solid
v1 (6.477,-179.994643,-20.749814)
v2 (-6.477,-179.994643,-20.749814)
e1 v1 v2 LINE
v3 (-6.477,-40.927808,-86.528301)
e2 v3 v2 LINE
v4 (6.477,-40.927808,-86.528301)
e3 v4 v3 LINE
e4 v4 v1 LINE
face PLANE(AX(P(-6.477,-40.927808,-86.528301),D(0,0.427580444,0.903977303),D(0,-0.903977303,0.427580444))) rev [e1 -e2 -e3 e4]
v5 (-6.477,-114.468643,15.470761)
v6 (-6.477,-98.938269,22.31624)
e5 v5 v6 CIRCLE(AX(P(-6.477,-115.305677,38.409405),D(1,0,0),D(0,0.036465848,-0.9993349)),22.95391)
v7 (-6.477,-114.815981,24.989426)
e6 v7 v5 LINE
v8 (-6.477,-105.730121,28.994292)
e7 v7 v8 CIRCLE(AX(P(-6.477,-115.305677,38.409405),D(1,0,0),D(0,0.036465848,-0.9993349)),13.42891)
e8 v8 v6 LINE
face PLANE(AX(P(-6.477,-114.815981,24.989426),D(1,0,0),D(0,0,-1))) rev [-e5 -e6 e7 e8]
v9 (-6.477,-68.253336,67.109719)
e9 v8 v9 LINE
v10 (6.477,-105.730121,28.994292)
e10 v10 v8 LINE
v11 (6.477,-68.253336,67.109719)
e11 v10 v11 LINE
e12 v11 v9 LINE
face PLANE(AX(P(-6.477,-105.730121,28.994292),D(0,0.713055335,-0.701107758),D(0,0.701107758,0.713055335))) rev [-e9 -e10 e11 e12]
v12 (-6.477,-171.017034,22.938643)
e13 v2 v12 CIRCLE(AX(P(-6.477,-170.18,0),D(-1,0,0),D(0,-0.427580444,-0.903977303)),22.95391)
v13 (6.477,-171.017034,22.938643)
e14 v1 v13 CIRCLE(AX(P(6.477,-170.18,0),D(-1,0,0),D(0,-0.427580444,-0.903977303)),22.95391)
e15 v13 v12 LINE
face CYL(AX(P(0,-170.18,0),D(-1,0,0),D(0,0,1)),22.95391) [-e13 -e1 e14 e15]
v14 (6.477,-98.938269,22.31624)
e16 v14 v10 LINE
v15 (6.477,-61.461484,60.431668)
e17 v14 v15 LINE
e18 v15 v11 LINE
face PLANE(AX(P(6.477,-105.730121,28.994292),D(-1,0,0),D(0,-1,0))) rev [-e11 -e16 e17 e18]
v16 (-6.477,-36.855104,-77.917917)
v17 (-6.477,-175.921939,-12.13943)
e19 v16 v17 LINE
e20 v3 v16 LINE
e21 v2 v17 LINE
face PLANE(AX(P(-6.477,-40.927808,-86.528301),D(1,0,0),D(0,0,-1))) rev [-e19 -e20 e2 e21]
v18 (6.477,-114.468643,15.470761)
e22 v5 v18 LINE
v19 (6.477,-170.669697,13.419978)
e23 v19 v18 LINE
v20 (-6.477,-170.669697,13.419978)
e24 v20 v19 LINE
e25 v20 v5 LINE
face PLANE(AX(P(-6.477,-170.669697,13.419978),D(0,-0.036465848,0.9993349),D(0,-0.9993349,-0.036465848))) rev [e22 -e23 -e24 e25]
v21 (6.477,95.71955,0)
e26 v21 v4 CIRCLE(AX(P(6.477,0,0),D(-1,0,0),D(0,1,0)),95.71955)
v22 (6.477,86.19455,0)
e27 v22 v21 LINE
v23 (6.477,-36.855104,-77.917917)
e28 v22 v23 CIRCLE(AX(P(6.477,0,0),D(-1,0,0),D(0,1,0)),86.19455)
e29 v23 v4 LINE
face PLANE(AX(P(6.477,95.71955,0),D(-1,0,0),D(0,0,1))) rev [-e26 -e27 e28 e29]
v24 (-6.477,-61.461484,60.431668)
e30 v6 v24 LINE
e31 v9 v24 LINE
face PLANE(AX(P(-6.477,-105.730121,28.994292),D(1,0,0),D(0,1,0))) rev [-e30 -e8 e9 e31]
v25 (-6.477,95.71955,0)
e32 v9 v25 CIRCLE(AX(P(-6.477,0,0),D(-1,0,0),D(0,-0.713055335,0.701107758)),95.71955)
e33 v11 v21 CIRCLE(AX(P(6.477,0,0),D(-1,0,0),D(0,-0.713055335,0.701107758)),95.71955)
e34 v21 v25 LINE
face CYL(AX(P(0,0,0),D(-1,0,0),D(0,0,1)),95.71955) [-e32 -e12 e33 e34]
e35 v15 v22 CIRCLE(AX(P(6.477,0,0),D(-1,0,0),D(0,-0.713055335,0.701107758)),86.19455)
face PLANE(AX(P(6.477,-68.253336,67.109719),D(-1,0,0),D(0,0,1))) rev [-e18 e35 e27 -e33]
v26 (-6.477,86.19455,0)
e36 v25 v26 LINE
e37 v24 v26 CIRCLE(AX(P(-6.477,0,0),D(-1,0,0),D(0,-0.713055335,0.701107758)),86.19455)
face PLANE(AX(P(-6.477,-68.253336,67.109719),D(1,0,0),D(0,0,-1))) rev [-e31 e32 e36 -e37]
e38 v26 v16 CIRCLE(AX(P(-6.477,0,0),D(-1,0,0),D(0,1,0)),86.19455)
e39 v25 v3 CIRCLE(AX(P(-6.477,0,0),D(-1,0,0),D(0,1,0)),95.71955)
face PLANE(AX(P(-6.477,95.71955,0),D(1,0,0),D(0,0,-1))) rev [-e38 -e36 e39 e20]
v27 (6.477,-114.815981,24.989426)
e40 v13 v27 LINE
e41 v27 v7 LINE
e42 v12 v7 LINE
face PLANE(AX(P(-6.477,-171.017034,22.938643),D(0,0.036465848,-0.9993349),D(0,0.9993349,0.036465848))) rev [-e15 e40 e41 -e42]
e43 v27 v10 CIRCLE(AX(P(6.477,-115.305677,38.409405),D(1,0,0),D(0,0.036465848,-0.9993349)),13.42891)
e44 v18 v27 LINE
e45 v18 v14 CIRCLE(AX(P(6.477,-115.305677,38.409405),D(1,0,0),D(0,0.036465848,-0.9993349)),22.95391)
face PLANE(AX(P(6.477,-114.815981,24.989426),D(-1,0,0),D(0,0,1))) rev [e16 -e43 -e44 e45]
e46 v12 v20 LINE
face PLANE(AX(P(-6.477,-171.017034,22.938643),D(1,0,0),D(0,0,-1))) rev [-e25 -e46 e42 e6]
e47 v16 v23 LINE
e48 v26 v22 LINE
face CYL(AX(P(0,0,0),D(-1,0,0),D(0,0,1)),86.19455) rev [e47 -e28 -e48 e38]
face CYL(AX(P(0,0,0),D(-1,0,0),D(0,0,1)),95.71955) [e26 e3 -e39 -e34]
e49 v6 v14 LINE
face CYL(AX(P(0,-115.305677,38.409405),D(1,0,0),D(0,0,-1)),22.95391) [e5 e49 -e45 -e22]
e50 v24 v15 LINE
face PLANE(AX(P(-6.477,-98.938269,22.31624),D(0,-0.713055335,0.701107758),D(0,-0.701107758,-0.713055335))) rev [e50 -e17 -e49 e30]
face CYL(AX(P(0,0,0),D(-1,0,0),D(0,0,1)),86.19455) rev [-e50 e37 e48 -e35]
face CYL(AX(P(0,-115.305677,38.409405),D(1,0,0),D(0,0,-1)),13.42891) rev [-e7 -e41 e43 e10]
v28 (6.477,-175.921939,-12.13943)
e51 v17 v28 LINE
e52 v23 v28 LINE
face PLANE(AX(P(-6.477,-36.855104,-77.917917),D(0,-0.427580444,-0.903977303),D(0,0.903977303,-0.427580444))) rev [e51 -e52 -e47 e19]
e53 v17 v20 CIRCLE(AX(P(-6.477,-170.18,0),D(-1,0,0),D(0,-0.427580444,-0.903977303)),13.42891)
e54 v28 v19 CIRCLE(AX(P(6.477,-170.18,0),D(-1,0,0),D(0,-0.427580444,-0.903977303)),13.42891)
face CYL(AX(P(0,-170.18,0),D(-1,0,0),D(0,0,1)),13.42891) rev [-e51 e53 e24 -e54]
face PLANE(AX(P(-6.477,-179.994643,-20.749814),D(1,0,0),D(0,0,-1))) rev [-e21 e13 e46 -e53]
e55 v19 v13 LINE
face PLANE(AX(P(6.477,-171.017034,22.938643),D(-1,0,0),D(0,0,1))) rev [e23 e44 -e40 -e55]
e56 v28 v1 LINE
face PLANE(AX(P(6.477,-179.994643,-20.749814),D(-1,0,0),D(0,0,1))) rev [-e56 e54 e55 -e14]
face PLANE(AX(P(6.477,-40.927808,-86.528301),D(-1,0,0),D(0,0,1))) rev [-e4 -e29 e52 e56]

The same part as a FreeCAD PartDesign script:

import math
import FreeCAD as App
import Part
import Sketcher

V = App.Vector
Q = App.Units.Quantity


def add_polygon(sketch, points):
    """Adds a closed chain of lines whose ends are joined by coincident constraints."""
    first, n = sketch.GeometryCount, len(points)
    for a, b in zip(points, points[1:] + points[:1]):
        sketch.addGeometry(Part.LineSegment(App.Vector(*a, 0), App.Vector(*b, 0)), False)
    for i in range(n):
        sketch.addConstraint(Sketcher.Constraint("Coincident", first + i, 2, first + (i + 1) % n, 1))

doc = App.newDocument("Part")
params = doc.addObject("Spreadsheet::Sheet", "Params")
for row, (alias, value) in enumerate([
    ("sketch1_width", "0.51 in"),
    ("sketch1_height", "0.375 in"),
], start=1):
    params.set(f"A{row}", alias)
    params.set(f"B{row}", "=" + value)
    params.setAlias(f"B{row}", alias)

body = doc.addObject("PartDesign::Body", "Body")

# Sketch on XY plane
sketch1 = body.newObject("Sketcher::SketchObject", "Sketch")
sketch1.AttachmentSupport = (doc.getObject("XY_Plane"), [""])
sketch1.MapMode = "FlatFace"
add_polygon(sketch1, [(-6, 96), (-6, 86), (6, 86), (6, 96)])  # lines 0-3
sketch1.addConstraint([
    Sketcher.Constraint("Vertical", 0),
    Sketcher.Constraint("Horizontal", 1),
    Sketcher.Constraint("Vertical", 2),
    Sketcher.Constraint("Horizontal", 3),
    Sketcher.Constraint("DistanceX", 1, 1, 1, 2, Q("0.51 in")),
    Sketcher.Constraint("DistanceY", 0, 2, 0, 1, Q("0.375 in")),
    Sketcher.Constraint("DistanceX", 0, 2, -1, 1, Q("0.255 in")),
    Sketcher.Constraint("DistanceY", -1, 1, 0, 2, 86.19455),
])
sketch1.setExpression("Constraints[8]", "Params.sketch1_width")
sketch1.setExpression("Constraints[9]", "Params.sketch1_height")

# Sketch on YZ plane
sketch2 = body.newObject("Sketcher::SketchObject", "Sketch001")
sketch2.AttachmentSupport = (doc.getObject("YZ_Plane"), [""])
sketch2.MapMode = "FlatFace"
sketch2.addGeometry([
    Part.LineSegment(V(-178, -16, 0), V(-39, -82, 0)),  # 0
    Part.ArcOfCircle(Part.Circle(V(0, 0, 0), V(0, 0, 1), 91), math.radians(-115), math.radians(135)),  # 1
    Part.LineSegment(V(-65, 64, 0), V(-102, 26, 0)),  # 2
    Part.ArcOfCircle(Part.Circle(V(-115, 38, 0), V(0, 0, 1), 18), math.radians(-88), math.radians(-45)),  # 3
    Part.LineSegment(V(-115, 20, 0), V(-171, 18, 0)),  # 4
    Part.ArcOfCircle(Part.Circle(V(-170, 0, 0), V(0, 0, 1), 18), math.radians(92), math.radians(245)),  # 5
], False)
sketch2.addConstraint([
    Sketcher.Constraint("Tangent", 0, 2, 1, 1),
    Sketcher.Constraint("Tangent", 1, 2, 2, 1),
    Sketcher.Constraint("Tangent", 2, 2, 3, 2),
    Sketcher.Constraint("Tangent", 3, 1, 4, 1),
    Sketcher.Constraint("Tangent", 4, 2, 5, 1),
    Sketcher.Constraint("Tangent", 5, 2, 0, 1),
    Sketcher.Constraint("Coincident", 1, 3, -1, 1),
    Sketcher.Constraint("Equal", 3, 5),
    Sketcher.Constraint("PointOnObject", 5, 3, -1),
    Sketcher.Constraint("DistanceX", 5, 3, -1, 1, Q("6.7 in")),
    Sketcher.Constraint("Radius", 1, 90.95705),
    Sketcher.Constraint("Radius", 3, 18.19141),
    Sketcher.Constraint("DistanceY", 3, 1, 1, 2, 43.5406),
    Sketcher.Constraint("DistanceX", 1, 2, -1, 1, 64.85741),
])
doc.recompute()

additivepipe = body.newObject("PartDesign::AdditivePipe", "AdditivePipe")
additivepipe.Profile = sketch1
additivepipe.Spine = (sketch2, ["Edge1", "Edge2", "Edge3", "Edge4", "Edge5", "Edge6"])

doc.recompute()
